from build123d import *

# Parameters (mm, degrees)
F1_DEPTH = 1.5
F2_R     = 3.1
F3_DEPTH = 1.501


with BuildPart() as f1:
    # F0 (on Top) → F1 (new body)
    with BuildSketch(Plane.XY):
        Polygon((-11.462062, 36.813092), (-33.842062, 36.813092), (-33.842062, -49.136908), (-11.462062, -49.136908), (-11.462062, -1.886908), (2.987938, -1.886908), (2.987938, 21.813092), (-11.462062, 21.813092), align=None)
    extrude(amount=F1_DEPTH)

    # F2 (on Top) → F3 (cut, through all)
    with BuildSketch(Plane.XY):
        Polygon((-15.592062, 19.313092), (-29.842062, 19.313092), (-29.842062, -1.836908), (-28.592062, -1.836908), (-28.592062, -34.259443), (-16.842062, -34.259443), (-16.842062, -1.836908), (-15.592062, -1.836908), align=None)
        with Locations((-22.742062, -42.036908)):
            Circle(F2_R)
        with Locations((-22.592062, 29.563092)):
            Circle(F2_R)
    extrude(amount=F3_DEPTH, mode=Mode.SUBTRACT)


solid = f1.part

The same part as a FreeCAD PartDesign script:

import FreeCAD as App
import Part
import Sketcher

doc = App.newDocument("Part")
params = doc.addObject("Spreadsheet::Sheet", "Params")
for row, (alias, value) in enumerate([
    ("sketch1_height", "15 mm"),
    ("sketch1_height2", "23.7 mm"),
    ("sketch1_width", "22.38 mm"),
    ("sketch1_width2", "14.45 mm"),
    ("sketch1_height3", "85.95 mm"),
    ("pad1_length", "1.5 mm"),
    ("sketch2_diameter", "6.2 mm"),
    ("sketch2_width", "14.25 mm"),
    ("sketch2_height", "21.15 mm"),
], start=1):
    params.set(f"A{row}", alias)
    params.set(f"B{row}", "=" + value)
    params.setAlias(f"B{row}", alias)

body = doc.addObject("PartDesign::Body", "Body")

sketch1 = body.newObject("Sketcher::SketchObject", "Sketch")
sketch1.AttachmentSupport = (doc.getObject("XY_Plane"), [""])
sketch1.MapMode = "FlatFace"
sketch1.addGeometry(Part.LineSegment(App.Vector(-11, 37, 0), App.Vector(-34, 37, 0)), False)
sketch1.addGeometry(Part.LineSegment(App.Vector(-34, 37, 0), App.Vector(-34, -49, 0)), False)
sketch1.addGeometry(Part.LineSegment(App.Vector(-34, -49, 0), App.Vector(-11, -49, 0)), False)
sketch1.addGeometry(Part.LineSegment(App.Vector(-11, -49, 0), App.Vector(-11, -2, 0)), False)
sketch1.addGeometry(Part.LineSegment(App.Vector(-11, -2, 0), App.Vector(3, -2, 0)), False)
sketch1.addGeometry(Part.LineSegment(App.Vector(3, -2, 0), App.Vector(3, 22, 0)), False)
sketch1.addGeometry(Part.LineSegment(App.Vector(3, 22, 0), App.Vector(-11, 22, 0)), False)
sketch1.addGeometry(Part.LineSegment(App.Vector(-11, 22, 0), App.Vector(-11, 37, 0)), False)
sketch1.addConstraint(Sketcher.Constraint("Coincident", 0, 2, 1, 1))
sketch1.addConstraint(Sketcher.Constraint("Coincident", 1, 2, 2, 1))
sketch1.addConstraint(Sketcher.Constraint("Coincident", 2, 2, 3, 1))
sketch1.addConstraint(Sketcher.Constraint("Coincident", 3, 2, 4, 1))
sketch1.addConstraint(Sketcher.Constraint("Coincident", 4, 2, 5, 1))
sketch1.addConstraint(Sketcher.Constraint("Coincident", 5, 2, 6, 1))
sketch1.addConstraint(Sketcher.Constraint("Coincident", 6, 2, 7, 1))
sketch1.addConstraint(Sketcher.Constraint("Coincident", 7, 2, 0, 1))
sketch1.addConstraint(Sketcher.Constraint("Horizontal", 0))
sketch1.addConstraint(Sketcher.Constraint("Vertical", 1))
sketch1.addConstraint(Sketcher.Constraint("Horizontal", 2))
sketch1.addConstraint(Sketcher.Constraint("Vertical", 3))
sketch1.addConstraint(Sketcher.Constraint("Horizontal", 4))
sketch1.addConstraint(Sketcher.Constraint("Vertical", 5))
sketch1.addConstraint(Sketcher.Constraint("Horizontal", 6))
sketch1.addConstraint(Sketcher.Constraint("Vertical", 7))
sketch1.addConstraint(Sketcher.Constraint("Vertical", 3, 2, 6, 2))
sketch1.addConstraint(Sketcher.Constraint("DistanceY", 7, 1, 7, 2, 15.0))
sketch1.addConstraint(Sketcher.Constraint("DistanceY", 5, 1, 5, 2, 23.7))
sketch1.addConstraint(Sketcher.Constraint("DistanceX", 0, 2, 0, 1, 22.38))
sketch1.addConstraint(Sketcher.Constraint("DistanceX", 4, 1, 4, 2, 14.45))
sketch1.addConstraint(Sketcher.Constraint("DistanceY", 1, 2, 1, 1, 85.95))
sketch1.addConstraint(Sketcher.Constraint("DistanceY", -1, 1, 0, 2, 36.813092))
sketch1.addConstraint(Sketcher.Constraint("DistanceX", -1, 1, 4, 2, 2.987938))
sketch1.setExpression("Constraints[17]", "Params.sketch1_height")
sketch1.setExpression("Constraints[18]", "Params.sketch1_height2")
sketch1.setExpression("Constraints[19]", "Params.sketch1_width")
sketch1.setExpression("Constraints[20]", "Params.sketch1_width2")
sketch1.setExpression("Constraints[21]", "Params.sketch1_height3")
pad1 = body.newObject("PartDesign::Pad", "Pad")
pad1.Profile = sketch1
pad1.setExpression("Length", "Params.pad1_length")

sketch2 = body.newObject("Sketcher::SketchObject", "Sketch001")
sketch2.AttachmentSupport = (doc.getObject("XY_Plane"), [""])
sketch2.MapMode = "FlatFace"
sketch2.addGeometry(Part.LineSegment(App.Vector(-15.6, 19.3, 0), App.Vector(-29.8, 19.3, 0)), False)
sketch2.addGeometry(Part.LineSegment(App.Vector(-29.8, 19.3, 0), App.Vector(-29.8, -1.8, 0)), False)
sketch2.addGeometry(Part.LineSegment(App.Vector(-29.8, -1.8, 0), App.Vector(-28.6, -1.8, 0)), False)
sketch2.addGeometry(Part.LineSegment(App.Vector(-28.6, -1.8, 0), App.Vector(-28.6, -34.3, 0)), False)
sketch2.addGeometry(Part.LineSegment(App.Vector(-28.6, -34.3, 0), App.Vector(-16.8, -34.3, 0)), False)
sketch2.addGeometry(Part.LineSegment(App.Vector(-16.8, -34.3, 0), App.Vector(-16.8, -1.8, 0)), False)
sketch2.addGeometry(Part.LineSegment(App.Vector(-16.8, -1.8, 0), App.Vector(-15.6, -1.8, 0)), False)
sketch2.addGeometry(Part.LineSegment(App.Vector(-15.6, -1.8, 0), App.Vector(-15.6, 19.3, 0)), False)
sketch2.addGeometry(Part.Circle(App.Vector(-22.7, -42, 0), App.Vector(0, 0, 1), 3.1), False)
sketch2.addGeometry(Part.Circle(App.Vector(-22.6, 29.6, 0), App.Vector(0, 0, 1), 3.1), False)
sketch2.addConstraint(Sketcher.Constraint("Coincident", 0, 2, 1, 1))
sketch2.addConstraint(Sketcher.Constraint("Coincident", 1, 2, 2, 1))
sketch2.addConstraint(Sketcher.Constraint("Coincident", 2, 2, 3, 1))
sketch2.addConstraint(Sketcher.Constraint("Coincident", 3, 2, 4, 1))
sketch2.addConstraint(Sketcher.Constraint("Coincident", 4, 2, 5, 1))
sketch2.addConstraint(Sketcher.Constraint("Coincident", 5, 2, 6, 1))
sketch2.addConstraint(Sketcher.Constraint("Coincident", 6, 2, 7, 1))
sketch2.addConstraint(Sketcher.Constraint("Coincident", 7, 2, 0, 1))
sketch2.addConstraint(Sketcher.Constraint("Horizontal", 0))
sketch2.addConstraint(Sketcher.Constraint("Vertical", 1))
sketch2.addConstraint(Sketcher.Constraint("Horizontal", 2))
sketch2.addConstraint(Sketcher.Constraint("Vertical", 3))
sketch2.addConstraint(Sketcher.Constraint("Horizontal", 4))
sketch2.addConstraint(Sketcher.Constraint("Vertical", 5))
sketch2.addConstraint(Sketcher.Constraint("Horizontal", 6))
sketch2.addConstraint(Sketcher.Constraint("Vertical", 7))
sketch2.addConstraint(Sketcher.Constraint("Equal", 8, 9))
sketch2.addConstraint(Sketcher.Constraint("Horizontal", 2, 2, 5, 2))
sketch2.addConstraint(Sketcher.Constraint("Equal", 2, 6))
sketch2.addConstraint(Sketcher.Constraint("Diameter", 8, 6.2))
sketch2.addConstraint(Sketcher.Constraint("DistanceX", 2, 2, 9, 3, 6.0))
sketch2.addConstraint(Sketcher.Constraint("DistanceX", 1, 2, 4, 2, 13.0))
sketch2.addConstraint(Sketcher.Constraint("DistanceX", 0, 2, 0, 1, 14.25))
sketch2.addConstraint(Sketcher.Constraint("DistanceY", 1, 2, 1, 1, 21.15))
sketch2.addConstraint(Sketcher.Constraint("DistanceY", 8, 3, 9, 3, 71.6))
sketch2.addConstraint(Sketcher.Constraint("DistanceX", 0, 2, 8, 3, 7.1))
sketch2.addConstraint(Sketcher.Constraint("DistanceY", 1, 2, 9, 3, 31.4))
sketch2.addConstraint(Sketcher.Constraint("DistanceY", 3, 2, 3, 1, 32.422535))
sketch2.addConstraint(Sketcher.Constraint("DistanceX", 9, 3, -1, 1, 22.592062))
sketch2.addConstraint(Sketcher.Constraint("DistanceY", 8, 3, -1, 1, 42.036908))
sketch2.setExpression("Constraints[19]", "Params.sketch2_diameter")
sketch2.setExpression("Constraints[22]", "Params.sketch2_width")
sketch2.setExpression("Constraints[23]", "Params.sketch2_height")
pocket1 = body.newObject("PartDesign::Pocket", "Pocket")
pocket1.Profile = sketch2
pocket1.Type = "ThroughAll"
pocket1.Reversed = True

doc.recompute()
